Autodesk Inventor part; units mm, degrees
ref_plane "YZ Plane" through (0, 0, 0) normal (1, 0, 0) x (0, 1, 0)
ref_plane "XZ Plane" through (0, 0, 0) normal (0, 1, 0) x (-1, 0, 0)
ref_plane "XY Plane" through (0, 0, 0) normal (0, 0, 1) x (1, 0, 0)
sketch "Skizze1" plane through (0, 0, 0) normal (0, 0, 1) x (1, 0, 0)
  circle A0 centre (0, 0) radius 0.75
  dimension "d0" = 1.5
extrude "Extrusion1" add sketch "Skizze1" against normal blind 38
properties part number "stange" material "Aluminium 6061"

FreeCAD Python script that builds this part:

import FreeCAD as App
import Part
import Sketcher
from FreeCAD import Vector
Q = App.Units.Quantity

doc = App.newDocument("Part")
body = doc.addObject("PartDesign::Body", "Body")

# Sketch on XY plane
sketch1 = body.newObject("Sketcher::SketchObject", "Sketch")
sketch1.AttachmentSupport = (doc.getObject("XY_Plane"), [""])
sketch1.MapMode = "FlatFace"
sketch1.addGeometry(Part.Circle(Vector(0, 0, 0), Vector(0, 0, 1), 0.75), False)
sketch1.addConstraint([
    Sketcher.Constraint("Coincident", 0, 3, -1, 1),
    Sketcher.Constraint("Diameter", 0, Q("1.5 mm")),
])
pad1 = body.newObject("PartDesign::Pad", "Pad")
pad1.Profile = sketch1
pad1.Length = 38
pad1.Reversed = True

doc.recompute()
